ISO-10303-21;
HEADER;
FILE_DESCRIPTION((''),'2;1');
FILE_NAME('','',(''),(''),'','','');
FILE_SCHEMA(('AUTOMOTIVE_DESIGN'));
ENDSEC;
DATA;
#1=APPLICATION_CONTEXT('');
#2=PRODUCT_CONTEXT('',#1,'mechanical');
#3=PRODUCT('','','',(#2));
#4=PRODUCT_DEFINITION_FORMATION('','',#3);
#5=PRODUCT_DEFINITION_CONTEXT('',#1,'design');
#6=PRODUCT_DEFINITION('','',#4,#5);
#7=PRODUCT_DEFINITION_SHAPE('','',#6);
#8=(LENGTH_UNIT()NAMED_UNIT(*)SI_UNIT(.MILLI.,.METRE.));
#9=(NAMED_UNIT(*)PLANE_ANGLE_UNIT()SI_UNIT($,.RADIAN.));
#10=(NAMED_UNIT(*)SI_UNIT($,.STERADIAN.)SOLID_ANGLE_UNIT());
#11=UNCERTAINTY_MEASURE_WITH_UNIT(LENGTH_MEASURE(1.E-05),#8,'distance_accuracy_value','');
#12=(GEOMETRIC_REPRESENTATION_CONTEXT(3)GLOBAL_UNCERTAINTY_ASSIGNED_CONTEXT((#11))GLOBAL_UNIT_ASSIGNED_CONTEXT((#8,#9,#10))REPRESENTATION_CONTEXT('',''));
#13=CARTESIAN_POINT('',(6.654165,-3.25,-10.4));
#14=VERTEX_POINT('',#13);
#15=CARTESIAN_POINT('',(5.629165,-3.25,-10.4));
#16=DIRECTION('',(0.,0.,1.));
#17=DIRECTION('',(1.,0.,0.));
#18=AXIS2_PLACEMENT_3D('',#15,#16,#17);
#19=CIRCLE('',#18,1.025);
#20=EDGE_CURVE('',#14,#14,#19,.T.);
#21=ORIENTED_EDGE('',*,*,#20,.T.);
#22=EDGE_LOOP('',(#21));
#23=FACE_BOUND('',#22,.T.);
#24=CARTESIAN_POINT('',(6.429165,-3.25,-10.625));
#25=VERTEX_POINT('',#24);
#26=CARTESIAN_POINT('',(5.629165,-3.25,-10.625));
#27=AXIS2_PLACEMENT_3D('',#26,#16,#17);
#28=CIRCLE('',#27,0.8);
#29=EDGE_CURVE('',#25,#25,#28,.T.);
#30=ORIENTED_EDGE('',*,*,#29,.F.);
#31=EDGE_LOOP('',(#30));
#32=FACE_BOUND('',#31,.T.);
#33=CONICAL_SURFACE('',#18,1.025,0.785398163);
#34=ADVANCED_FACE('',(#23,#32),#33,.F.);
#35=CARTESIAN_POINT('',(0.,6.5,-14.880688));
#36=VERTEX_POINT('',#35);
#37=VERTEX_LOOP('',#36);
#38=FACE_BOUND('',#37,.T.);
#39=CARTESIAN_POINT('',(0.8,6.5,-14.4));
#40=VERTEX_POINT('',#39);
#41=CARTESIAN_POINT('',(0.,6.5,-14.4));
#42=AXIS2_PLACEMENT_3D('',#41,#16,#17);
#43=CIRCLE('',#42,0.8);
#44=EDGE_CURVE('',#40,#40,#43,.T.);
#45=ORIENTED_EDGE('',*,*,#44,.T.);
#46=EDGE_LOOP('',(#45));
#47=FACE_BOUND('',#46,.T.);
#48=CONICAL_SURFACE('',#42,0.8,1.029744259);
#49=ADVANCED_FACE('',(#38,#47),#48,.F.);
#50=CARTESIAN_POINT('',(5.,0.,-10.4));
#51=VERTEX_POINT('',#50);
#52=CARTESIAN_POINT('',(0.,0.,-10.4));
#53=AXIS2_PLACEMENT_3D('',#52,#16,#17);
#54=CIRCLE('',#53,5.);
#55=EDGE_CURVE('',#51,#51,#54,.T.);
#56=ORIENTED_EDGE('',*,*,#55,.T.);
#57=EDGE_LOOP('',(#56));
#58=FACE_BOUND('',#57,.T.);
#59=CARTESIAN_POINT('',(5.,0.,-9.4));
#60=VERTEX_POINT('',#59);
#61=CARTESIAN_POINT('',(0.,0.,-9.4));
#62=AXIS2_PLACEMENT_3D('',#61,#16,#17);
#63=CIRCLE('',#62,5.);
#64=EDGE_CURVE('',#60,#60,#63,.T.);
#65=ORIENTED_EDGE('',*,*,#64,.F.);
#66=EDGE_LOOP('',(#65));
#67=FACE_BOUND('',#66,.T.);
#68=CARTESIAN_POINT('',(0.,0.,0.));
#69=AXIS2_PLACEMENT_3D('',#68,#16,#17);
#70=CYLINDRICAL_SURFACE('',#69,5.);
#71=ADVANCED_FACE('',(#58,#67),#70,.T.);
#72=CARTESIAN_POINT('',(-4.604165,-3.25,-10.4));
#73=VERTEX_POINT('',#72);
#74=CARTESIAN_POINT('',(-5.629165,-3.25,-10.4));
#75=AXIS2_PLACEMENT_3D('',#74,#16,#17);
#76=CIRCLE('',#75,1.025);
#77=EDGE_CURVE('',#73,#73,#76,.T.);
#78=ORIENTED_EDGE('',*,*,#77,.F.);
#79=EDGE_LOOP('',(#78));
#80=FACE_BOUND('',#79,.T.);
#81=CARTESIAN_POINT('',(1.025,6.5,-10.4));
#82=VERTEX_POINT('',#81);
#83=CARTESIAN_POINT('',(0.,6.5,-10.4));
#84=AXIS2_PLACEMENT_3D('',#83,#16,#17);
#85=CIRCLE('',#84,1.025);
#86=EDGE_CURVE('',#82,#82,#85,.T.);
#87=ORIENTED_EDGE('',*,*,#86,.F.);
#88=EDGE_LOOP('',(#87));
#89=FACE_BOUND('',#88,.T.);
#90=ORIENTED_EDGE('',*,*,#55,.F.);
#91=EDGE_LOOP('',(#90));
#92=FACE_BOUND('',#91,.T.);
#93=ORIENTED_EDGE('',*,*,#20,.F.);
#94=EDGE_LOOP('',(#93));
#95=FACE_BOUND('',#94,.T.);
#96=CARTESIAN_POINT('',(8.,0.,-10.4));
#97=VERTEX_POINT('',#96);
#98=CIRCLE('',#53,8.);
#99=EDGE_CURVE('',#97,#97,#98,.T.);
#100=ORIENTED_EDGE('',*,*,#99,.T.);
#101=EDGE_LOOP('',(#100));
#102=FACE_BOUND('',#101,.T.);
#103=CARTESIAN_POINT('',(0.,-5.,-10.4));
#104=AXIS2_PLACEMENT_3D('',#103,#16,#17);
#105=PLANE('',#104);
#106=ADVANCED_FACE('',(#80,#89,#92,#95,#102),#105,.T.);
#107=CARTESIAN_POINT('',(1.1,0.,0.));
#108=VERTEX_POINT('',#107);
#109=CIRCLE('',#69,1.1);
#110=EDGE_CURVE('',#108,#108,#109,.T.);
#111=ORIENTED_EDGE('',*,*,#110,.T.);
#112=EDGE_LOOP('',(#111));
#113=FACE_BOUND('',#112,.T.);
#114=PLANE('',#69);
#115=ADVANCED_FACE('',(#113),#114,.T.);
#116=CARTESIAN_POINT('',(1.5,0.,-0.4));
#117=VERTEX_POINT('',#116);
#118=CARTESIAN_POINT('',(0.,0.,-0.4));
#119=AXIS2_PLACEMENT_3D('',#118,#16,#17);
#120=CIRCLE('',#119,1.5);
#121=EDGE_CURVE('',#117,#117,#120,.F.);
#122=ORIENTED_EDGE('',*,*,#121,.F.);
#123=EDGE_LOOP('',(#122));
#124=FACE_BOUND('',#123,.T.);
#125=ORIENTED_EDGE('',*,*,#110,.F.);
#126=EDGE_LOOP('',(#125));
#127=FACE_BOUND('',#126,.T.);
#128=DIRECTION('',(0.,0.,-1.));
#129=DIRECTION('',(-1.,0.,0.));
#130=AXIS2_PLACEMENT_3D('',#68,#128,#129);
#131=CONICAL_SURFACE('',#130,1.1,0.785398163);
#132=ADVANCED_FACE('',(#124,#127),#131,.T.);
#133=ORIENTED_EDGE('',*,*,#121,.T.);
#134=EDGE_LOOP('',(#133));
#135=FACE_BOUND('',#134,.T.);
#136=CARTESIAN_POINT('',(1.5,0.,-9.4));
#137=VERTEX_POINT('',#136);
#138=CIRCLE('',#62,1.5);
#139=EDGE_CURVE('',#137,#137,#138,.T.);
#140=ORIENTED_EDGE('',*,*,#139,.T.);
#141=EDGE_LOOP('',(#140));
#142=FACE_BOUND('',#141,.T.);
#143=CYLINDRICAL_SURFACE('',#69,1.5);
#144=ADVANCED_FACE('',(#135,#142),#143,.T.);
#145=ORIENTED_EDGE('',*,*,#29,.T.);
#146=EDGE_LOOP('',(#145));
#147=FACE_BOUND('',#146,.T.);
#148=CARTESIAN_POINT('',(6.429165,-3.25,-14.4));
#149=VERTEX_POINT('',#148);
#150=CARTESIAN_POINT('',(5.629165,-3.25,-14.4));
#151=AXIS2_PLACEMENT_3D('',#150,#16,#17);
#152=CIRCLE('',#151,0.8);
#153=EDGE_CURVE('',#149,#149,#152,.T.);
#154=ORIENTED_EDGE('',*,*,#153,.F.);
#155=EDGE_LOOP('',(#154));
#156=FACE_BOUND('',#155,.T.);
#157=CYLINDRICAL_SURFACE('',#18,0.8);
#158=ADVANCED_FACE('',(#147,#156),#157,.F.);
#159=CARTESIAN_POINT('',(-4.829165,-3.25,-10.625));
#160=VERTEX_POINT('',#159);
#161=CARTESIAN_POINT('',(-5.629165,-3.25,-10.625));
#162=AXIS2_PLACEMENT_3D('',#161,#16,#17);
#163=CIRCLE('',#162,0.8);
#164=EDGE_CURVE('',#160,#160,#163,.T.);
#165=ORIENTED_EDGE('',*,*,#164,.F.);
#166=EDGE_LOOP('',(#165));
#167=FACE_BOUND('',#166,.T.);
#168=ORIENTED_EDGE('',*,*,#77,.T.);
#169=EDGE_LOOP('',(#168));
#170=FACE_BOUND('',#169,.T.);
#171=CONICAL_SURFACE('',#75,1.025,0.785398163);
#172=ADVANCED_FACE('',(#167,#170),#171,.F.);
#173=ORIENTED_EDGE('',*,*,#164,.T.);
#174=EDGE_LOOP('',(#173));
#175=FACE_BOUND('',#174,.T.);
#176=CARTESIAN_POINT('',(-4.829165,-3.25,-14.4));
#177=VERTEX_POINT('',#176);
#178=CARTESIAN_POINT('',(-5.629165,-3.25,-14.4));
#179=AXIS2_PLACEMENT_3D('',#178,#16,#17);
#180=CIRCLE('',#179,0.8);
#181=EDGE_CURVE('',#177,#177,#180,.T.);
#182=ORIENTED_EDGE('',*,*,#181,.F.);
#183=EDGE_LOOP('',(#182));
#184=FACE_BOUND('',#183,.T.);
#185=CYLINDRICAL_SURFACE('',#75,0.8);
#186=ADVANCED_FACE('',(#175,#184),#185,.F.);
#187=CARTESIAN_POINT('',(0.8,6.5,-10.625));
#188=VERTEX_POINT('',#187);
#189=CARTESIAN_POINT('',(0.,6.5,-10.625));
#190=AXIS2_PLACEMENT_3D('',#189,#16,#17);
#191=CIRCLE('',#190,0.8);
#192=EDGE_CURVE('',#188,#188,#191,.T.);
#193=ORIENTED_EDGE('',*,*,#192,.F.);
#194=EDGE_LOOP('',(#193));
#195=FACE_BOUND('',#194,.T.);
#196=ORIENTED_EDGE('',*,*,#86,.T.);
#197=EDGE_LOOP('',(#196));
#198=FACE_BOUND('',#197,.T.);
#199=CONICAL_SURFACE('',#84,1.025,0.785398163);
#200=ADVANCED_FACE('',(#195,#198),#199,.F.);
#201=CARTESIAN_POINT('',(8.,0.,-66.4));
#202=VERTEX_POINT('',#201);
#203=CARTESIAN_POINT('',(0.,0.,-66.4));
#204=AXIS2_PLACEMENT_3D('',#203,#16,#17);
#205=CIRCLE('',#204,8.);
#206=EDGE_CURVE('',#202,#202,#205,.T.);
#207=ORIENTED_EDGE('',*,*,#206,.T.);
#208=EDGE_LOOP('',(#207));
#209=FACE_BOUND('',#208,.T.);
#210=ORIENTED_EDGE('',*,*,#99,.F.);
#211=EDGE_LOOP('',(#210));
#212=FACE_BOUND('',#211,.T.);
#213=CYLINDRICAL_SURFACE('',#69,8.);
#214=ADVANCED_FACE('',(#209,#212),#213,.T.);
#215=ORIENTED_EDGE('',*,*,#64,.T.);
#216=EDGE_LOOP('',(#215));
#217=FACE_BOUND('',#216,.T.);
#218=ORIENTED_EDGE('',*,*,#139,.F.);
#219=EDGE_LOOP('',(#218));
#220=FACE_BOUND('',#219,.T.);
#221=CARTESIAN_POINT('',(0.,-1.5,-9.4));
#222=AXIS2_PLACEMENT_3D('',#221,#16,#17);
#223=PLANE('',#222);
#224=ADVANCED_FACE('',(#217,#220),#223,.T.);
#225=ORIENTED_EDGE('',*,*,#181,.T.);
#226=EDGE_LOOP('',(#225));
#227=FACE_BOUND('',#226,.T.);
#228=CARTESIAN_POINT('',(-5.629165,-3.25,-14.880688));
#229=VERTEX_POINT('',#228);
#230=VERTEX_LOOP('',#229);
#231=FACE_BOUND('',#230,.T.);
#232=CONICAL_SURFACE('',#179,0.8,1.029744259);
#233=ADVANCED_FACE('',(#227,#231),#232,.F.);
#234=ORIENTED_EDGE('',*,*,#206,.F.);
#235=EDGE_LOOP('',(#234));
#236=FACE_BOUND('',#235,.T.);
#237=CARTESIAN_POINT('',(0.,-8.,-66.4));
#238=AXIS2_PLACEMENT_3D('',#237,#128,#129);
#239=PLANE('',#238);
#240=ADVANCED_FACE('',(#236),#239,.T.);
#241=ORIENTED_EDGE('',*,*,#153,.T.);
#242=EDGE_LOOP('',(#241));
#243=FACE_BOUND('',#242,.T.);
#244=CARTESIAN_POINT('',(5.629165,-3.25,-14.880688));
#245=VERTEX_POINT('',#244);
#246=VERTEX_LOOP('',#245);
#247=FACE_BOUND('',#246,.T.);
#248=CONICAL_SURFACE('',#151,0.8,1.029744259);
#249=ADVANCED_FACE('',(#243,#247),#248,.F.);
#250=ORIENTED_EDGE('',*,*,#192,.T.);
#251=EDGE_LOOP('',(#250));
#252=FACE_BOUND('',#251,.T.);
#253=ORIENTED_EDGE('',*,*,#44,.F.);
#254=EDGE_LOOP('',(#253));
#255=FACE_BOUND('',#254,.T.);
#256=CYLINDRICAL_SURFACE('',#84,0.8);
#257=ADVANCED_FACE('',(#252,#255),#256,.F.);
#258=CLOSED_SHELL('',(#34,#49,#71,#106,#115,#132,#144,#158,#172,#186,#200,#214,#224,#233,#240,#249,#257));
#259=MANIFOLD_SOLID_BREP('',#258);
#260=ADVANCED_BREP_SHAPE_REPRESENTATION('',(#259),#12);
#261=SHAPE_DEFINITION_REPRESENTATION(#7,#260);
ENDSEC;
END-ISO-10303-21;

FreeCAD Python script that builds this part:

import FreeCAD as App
import Part
import Sketcher
Q = App.Units.Quantity


def edges_at(feature, points):
    """Names of the edges that pass closest to the given points."""
    edges = feature.Shape.Edges
    near = lambda p: min(range(len(edges)), key=lambda i: edges[i].distToShape(Part.Vertex(*p))[0])
    return sorted({f"Edge{near(p) + 1}" for p in points})

doc = App.newDocument("Part")
body = doc.addObject("PartDesign::Body", "Body")

sketch1 = body.newObject("Sketcher::SketchObject", "Sketch")
sketch1.AttachmentSupport = (doc.getObject("YZ_Plane"), [""])
sketch1.MapMode = "FlatFace"
sketch1.addGeometry([
    Part.LineSegment(App.Vector(0, 0, 0), App.Vector(-1.5, 0, 0)),
    Part.LineSegment(App.Vector(-1.5, 0, 0), App.Vector(-1.5, -9.4, 0)),
    Part.LineSegment(App.Vector(-1.5, -9.4, 0), App.Vector(-5, -9.4, 0)),
    Part.LineSegment(App.Vector(-5, -9.4, 0), App.Vector(-5, -10.4, 0)),
    Part.LineSegment(App.Vector(-5, -10.4, 0), App.Vector(-8, -10.4, 0)),
    Part.LineSegment(App.Vector(-8, -10.4, 0), App.Vector(-8, -66.4, 0)),
    Part.LineSegment(App.Vector(-8, -66.4, 0), App.Vector(0, -66.4, 0)),
    Part.LineSegment(App.Vector(0, -66.4, 0), App.Vector(0, 0, 0)),
], False)
sketch1.addConstraint([
    Sketcher.Constraint("Coincident", 0, 2, 1, 1),
    Sketcher.Constraint("Coincident", 1, 2, 2, 1),
    Sketcher.Constraint("Coincident", 2, 2, 3, 1),
    Sketcher.Constraint("Coincident", 3, 2, 4, 1),
    Sketcher.Constraint("Coincident", 4, 2, 5, 1),
    Sketcher.Constraint("Coincident", 5, 2, 6, 1),
    Sketcher.Constraint("Coincident", 6, 2, 7, 1),
    Sketcher.Constraint("Coincident", 7, 2, 0, 1),
    Sketcher.Constraint("Horizontal", 0),
    Sketcher.Constraint("Vertical", 1),
    Sketcher.Constraint("Horizontal", 2),
    Sketcher.Constraint("Vertical", 3),
    Sketcher.Constraint("Horizontal", 4),
    Sketcher.Constraint("Vertical", 5),
    Sketcher.Constraint("Horizontal", 6),
    Sketcher.Constraint("Vertical", 7),
    Sketcher.Constraint("Coincident", 7, 2, -1, 1),
    Sketcher.Constraint("DistanceX", 4, 2, 4, 1, Q("3 mm")),
    Sketcher.Constraint("DistanceX", 6, 1, 6, 2, Q("8 mm")),
    Sketcher.Constraint("DistanceY", 3, 2, 3, 1, Q("1 mm")),
    Sketcher.Constraint("DistanceY", 5, 2, 5, 1, Q("56 mm")),
    Sketcher.Constraint("DistanceX", 0, 2, 0, 1, Q("1.5 mm")),
    Sketcher.Constraint("DistanceY", 1, 2, 1, 1, Q("9.4 mm")),
])
revolution = body.newObject("PartDesign::Revolution", "Revolution")
revolution.Profile = sketch1
revolution.ReferenceAxis = (sketch1, ["V_Axis"])
revolution.Angle = 360
doc.recompute()

chamfer = body.newObject("PartDesign::Chamfer", "Chamfer")
chamfer.Base = (revolution, edges_at(revolution, [(-1.5, 0, 0)]))
chamfer.Size = 0.4

sketch2 = body.newObject("Sketcher::SketchObject", "Sketch001")
sketch2.AttachmentSupport = (doc.getObject("YZ_Plane"), [""])
sketch2.MapMode = "FlatFace"
sketch2.addGeometry([
    Part.LineSegment(App.Vector(6.5, -14.880688, 0), App.Vector(6.5, -10.4, 0)),
    Part.LineSegment(App.Vector(6.5, -10.4, 0), App.Vector(5.475, -10.4, 0)),
    Part.LineSegment(App.Vector(5.475, -10.4, 0), App.Vector(5.7, -10.625, 0)),
    Part.LineSegment(App.Vector(5.7, -10.625, 0), App.Vector(5.7, -14.4, 0)),
    Part.LineSegment(App.Vector(5.7, -14.4, 0), App.Vector(6.5, -14.880688, 0)),
], False)
sketch2.addGeometry(Part.LineSegment(App.Vector(6.5, -10.4, 0), App.Vector(6.5, -14.880688, 0)), True)
sketch2.addConstraint([
    Sketcher.Constraint("Coincident", 0, 2, 1, 1),
    Sketcher.Constraint("Coincident", 1, 2, 2, 1),
    Sketcher.Constraint("Coincident", 2, 2, 3, 1),
    Sketcher.Constraint("Coincident", 3, 2, 4, 1),
    Sketcher.Constraint("Coincident", 4, 2, 0, 1),
    Sketcher.Constraint("Vertical", 0),
    Sketcher.Constraint("Horizontal", 1),
    Sketcher.Constraint("Vertical", 3),
    Sketcher.Constraint("Vertical", 5),
    Sketcher.Constraint("Coincident", 5, 1, 0, 2),
    Sketcher.Constraint("Equal", 0, 5),
    Sketcher.Constraint("Angle", 2, Q("-45 deg")),
    Sketcher.Constraint("Angle", 4, Q("-31 deg")),
    Sketcher.Constraint("DistanceY", 3, 2, 1, 2, Q("4 mm")),
    Sketcher.Constraint("DistanceX", -1, 1, 0, 2, Q("6.5 mm")),
    Sketcher.Constraint("DistanceY", 0, 2, -1, 1, Q("10.4 mm")),
    Sketcher.Constraint("DistanceX", -1, 1, 2, 2, Q("5.7 mm")),
    Sketcher.Constraint("DistanceX", 1, 2, 1, 1, Q("1.025 mm")),
])
groove = body.newObject("PartDesign::Groove", "Groove")
groove.Profile = sketch2
groove.ReferenceAxis = (sketch2, ["Axis0"])
groove.Angle = 360
doc.recompute()

polarpattern = body.newObject("PartDesign::PolarPattern", "PolarPattern")
polarpattern.Originals = [groove]
polarpattern.Axis = (doc.getObject("Z_Axis"), [""])
polarpattern.Angle = 360
polarpattern.Occurrences = 3
body.Tip = polarpattern

doc.recompute()
